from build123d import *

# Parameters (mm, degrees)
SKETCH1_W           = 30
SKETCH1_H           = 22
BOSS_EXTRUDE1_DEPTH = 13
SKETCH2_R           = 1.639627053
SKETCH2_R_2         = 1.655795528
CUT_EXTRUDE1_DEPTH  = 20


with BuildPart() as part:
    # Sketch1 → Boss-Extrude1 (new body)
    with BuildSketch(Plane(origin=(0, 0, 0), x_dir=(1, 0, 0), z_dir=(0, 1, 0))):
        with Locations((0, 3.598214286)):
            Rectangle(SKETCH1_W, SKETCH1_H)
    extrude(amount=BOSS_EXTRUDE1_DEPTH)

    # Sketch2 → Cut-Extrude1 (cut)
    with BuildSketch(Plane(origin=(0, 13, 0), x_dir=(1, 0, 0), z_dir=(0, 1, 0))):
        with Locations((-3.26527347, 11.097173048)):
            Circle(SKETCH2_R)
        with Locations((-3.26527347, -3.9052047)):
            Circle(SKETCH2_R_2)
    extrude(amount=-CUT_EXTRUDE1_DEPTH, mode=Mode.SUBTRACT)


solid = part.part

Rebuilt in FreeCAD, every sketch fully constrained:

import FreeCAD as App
import Part
import Sketcher
from FreeCAD import Vector


def add_polygon(sketch, points):
    """Adds a closed chain of lines whose ends are joined by coincident constraints."""
    first, n = sketch.GeometryCount, len(points)
    for a, b in zip(points, points[1:] + points[:1]):
        sketch.addGeometry(Part.LineSegment(App.Vector(*a, 0), App.Vector(*b, 0)), False)
    for i in range(n):
        sketch.addConstraint(Sketcher.Constraint("Coincident", first + i, 2, first + (i + 1) % n, 1))

doc = App.newDocument("Part")
body = doc.addObject("PartDesign::Body", "Body")

# Sketch on XZ plane
sketch1 = doc.addObject("Sketcher::SketchObject", "Sketch")
body.addObject(sketch1)
sketch1.AttachmentSupport = (doc.XZ_Plane, [""])
sketch1.MapMode = "FlatFace"
add_polygon(sketch1, [(-15, -15), (-15, 7), (15, 7), (15, -15)])  # lines 0-3
sketch1.addConstraint([
    Sketcher.Constraint("Vertical", 0),
    Sketcher.Constraint("Horizontal", 1),
    Sketcher.Constraint("Vertical", 2),
    Sketcher.Constraint("Horizontal", 3),
    Sketcher.Constraint("DistanceX", 1, 1, 1, 2, 30.0),
    Sketcher.Constraint("DistanceY", 0, 1, 0, 2, 22.0),
    Sketcher.Constraint("DistanceX", 0, 2, -1, 1, 15.0),
    Sketcher.Constraint("DistanceY", -1, 1, 0, 2, 7.401786),
])
pad1 = doc.addObject("PartDesign::Pad", "Pad")
body.addObject(pad1)
pad1.Profile = sketch1
pad1.Length = 13
pad1.Reversed = True

# Sketch on XZ plane
sketch2 = doc.addObject("Sketcher::SketchObject", "Sketch001")
body.addObject(sketch2)
sketch2.AttachmentSupport = (doc.XZ_Plane, [""])
sketch2.MapMode = "FlatFace"
sketch2.AttachmentOffset = App.Placement(Vector(0, 0, -13), App.Rotation())
sketch2.addGeometry([
    Part.Circle(Vector(-3.3, -11.1, 0), Vector(0, 0, 1), 1.6),
    Part.Circle(Vector(-3.3, 3.9, 0), Vector(0, 0, 1), 1.7),
], False)
sketch2.addConstraint([
    Sketcher.Constraint("Vertical", 0, 3, 1, 3),
    Sketcher.Constraint("Diameter", 1, 3.311591),
    Sketcher.Constraint("Diameter", 0, 3.279254),
    Sketcher.Constraint("DistanceX", 0, 3, -1, 1, 3.265273),
    Sketcher.Constraint("DistanceY", 0, 3, -1, 1, 11.097173),
    Sketcher.Constraint("DistanceY", -1, 1, 1, 3, 3.905205),
])
pocket1 = doc.addObject("PartDesign::Pocket", "Pocket")
body.addObject(pocket1)
pocket1.Profile = sketch2
pocket1.Length = 20
pocket1.Reversed = True

doc.recompute()
